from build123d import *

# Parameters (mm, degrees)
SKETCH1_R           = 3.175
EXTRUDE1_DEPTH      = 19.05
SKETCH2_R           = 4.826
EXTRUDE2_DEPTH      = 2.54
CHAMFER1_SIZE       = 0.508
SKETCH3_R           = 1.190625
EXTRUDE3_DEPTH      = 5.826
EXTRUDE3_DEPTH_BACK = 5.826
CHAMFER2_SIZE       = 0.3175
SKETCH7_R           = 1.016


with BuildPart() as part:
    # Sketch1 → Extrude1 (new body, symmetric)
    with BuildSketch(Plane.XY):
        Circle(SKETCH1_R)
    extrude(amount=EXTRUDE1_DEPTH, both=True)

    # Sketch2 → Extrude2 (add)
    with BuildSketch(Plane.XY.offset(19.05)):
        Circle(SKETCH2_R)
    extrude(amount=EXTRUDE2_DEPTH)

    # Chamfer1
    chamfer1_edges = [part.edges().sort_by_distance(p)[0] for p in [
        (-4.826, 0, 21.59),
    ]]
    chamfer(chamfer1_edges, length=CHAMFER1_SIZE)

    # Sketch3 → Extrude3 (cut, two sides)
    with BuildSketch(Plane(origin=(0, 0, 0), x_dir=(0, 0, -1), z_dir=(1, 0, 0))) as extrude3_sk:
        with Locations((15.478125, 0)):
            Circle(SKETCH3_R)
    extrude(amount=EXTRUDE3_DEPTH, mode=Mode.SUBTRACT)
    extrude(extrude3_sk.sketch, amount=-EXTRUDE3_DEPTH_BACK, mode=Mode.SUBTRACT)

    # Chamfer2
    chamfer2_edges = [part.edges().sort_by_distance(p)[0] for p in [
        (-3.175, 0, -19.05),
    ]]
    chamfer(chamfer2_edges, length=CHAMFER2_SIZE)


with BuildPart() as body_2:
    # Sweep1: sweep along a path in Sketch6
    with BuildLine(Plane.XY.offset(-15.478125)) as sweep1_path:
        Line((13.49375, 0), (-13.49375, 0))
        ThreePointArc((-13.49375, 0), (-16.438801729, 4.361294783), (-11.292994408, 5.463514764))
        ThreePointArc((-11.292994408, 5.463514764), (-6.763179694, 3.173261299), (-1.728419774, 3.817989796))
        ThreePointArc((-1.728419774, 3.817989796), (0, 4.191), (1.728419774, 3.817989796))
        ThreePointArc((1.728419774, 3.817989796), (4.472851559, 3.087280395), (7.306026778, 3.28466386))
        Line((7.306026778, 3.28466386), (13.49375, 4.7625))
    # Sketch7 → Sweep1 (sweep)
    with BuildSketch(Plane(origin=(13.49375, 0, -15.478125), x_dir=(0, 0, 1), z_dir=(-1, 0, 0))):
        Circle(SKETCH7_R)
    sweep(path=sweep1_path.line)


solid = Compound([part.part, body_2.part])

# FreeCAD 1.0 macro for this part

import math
import FreeCAD as App
import Part
import Sketcher
Q = App.Units.Quantity


def edges_at(feature, points):
    """Names of the edges that pass closest to the given points."""
    edges = feature.Shape.Edges
    near = lambda p: min(range(len(edges)), key=lambda i: edges[i].distToShape(Part.Vertex(*p))[0])
    return sorted({f"Edge{near(p) + 1}" for p in points})

doc = App.newDocument("Part")
body = doc.addObject("PartDesign::Body", "Body")

sketch1 = body.newObject("Sketcher::SketchObject", "Sketch")
sketch1.AttachmentSupport = (doc.getObject("XY_Plane"), [""])
sketch1.MapMode = "FlatFace"
sketch1.addGeometry(Part.Circle(App.Vector(0, 0, 0), App.Vector(0, 0, 1), 3.2), False)
sketch1.addConstraint([
    Sketcher.Constraint("Coincident", 0, 3, -1, 1),
    Sketcher.Constraint("Diameter", 0, Q("0.25 in")),
])
pad1 = body.newObject("PartDesign::Pad", "Pad")
pad1.Profile = sketch1
pad1.Length = Q("1.5 in")
pad1.Midplane = True

sketch2 = body.newObject("Sketcher::SketchObject", "Sketch001")
sketch2.AttachmentSupport = (doc.getObject("XY_Plane"), [""])
sketch2.MapMode = "FlatFace"
sketch2.AttachmentOffset = App.Placement(App.Vector(0, 0, 0.75 * 25.4), App.Rotation())
sketch2.addGeometry(Part.Circle(App.Vector(0, 0, 0), App.Vector(0, 0, 1), 4.8), False)
sketch2.addConstraint([
    Sketcher.Constraint("Coincident", 0, 3, -1, 1),
    Sketcher.Constraint("Diameter", 0, Q("0.38 in")),
])
pad2 = body.newObject("PartDesign::Pad", "Pad001")
pad2.Profile = sketch2
pad2.Length = Q("0.1 in")
doc.recompute()

chamfer = body.newObject("PartDesign::Chamfer", "Chamfer")
chamfer.Base = (pad2, edges_at(pad2, [(-4.826, 0, 21.59)]))
chamfer.Size = Q("0.02 in")

sketch3 = body.newObject("Sketcher::SketchObject", "Sketch002")
sketch3.AttachmentSupport = (doc.getObject("YZ_Plane"), [""])
sketch3.MapMode = "FlatFace"
sketch3.addGeometry(Part.Circle(App.Vector(0, -15.5, 0), App.Vector(0, 0, 1), 1.2), False)
sketch3.addConstraint([
    Sketcher.Constraint("PointOnObject", 0, 3, -2),
    Sketcher.Constraint("Diameter", 0, Q("0.09375 in")),
    Sketcher.Constraint("DistanceY", 0, 3, -1, 1, Q("0.609375 in")),
])
pocket1 = body.newObject("PartDesign::Pocket", "Pocket")
pocket1.Profile = sketch3
pocket1.Type = "ThroughAll"
pocket1.Midplane = True
doc.recompute()

chamfer2 = body.newObject("PartDesign::Chamfer", "Chamfer001")
chamfer2.Base = (pocket1, edges_at(pocket1, [(-3.175, 0, -19.05)]))
chamfer2.Size = Q("0.0125 in")
body2 = doc.addObject("PartDesign::Body", "Body001")

sketch4 = body2.newObject("Sketcher::SketchObject", "Sketch003")
sketch4.AttachmentSupport = (doc.getObject("YZ_Plane001"), [""])
sketch4.MapMode = "FlatFace"
sketch4.AttachmentOffset = App.Placement(App.Vector(0, 0, 0.53125 * 25.4), App.Rotation())
sketch4.addGeometry(Part.Circle(App.Vector(0, -15.5, 0), App.Vector(0, 0, 1), 1), False)
sketch4.addConstraint([
    Sketcher.Constraint("PointOnObject", 0, 3, -2),
    Sketcher.Constraint("Diameter", 0, Q("0.08 in")),
    Sketcher.Constraint("DistanceY", 0, 3, -1, 1, Q("0.609375 in")),
])

sketch5 = body2.newObject("Sketcher::SketchObject", "Sketch004")
sketch5.AttachmentSupport = (doc.getObject("XY_Plane001"), [""])
sketch5.MapMode = "FlatFace"
sketch5.AttachmentOffset = App.Placement(App.Vector(0, 0, -0.609375 * 25.4), App.Rotation())
sketch5.addGeometry([
    Part.LineSegment(App.Vector(13.5, 0, 0), App.Vector(-13.5, 0, 0)),
    Part.ArcOfCircle(Part.Circle(App.Vector(-13.5, 3.2, 0), App.Vector(0, 0, 1), 3.2), math.radians(46), math.radians(270)),
    Part.ArcOfCircle(Part.Circle(App.Vector(-5.3, 11.7, 0), App.Vector(0, 0, 1), 8.7), math.radians(-134), math.radians(-66)),
    Part.ArcOfCircle(Part.Circle(App.Vector(0, 0, 0), App.Vector(0, 0, 1), 4.2), math.radians(66), math.radians(114)),
    Part.ArcOfCircle(Part.Circle(App.Vector(5.3, 11.7, 0), App.Vector(0, 0, 1), 8.7), math.radians(-114), math.radians(-77)),
    Part.LineSegment(App.Vector(7.3, 3.3, 0), App.Vector(13.5, 4.8, 0)),
], False)
sketch5.addConstraint([
    Sketcher.Constraint("Tangent", 0, 2, 1, 2),
    Sketcher.Constraint("Tangent", 1, 1, 2, 1),
    Sketcher.Constraint("Tangent", 2, 2, 3, 2),
    Sketcher.Constraint("Tangent", 3, 1, 4, 1),
    Sketcher.Constraint("Tangent", 4, 2, 5, 1),
    Sketcher.Constraint("Horizontal", 0),
    Sketcher.Constraint("Coincident", 3, 3, -1, 1),
    Sketcher.Constraint("Equal", 2, 4),
    Sketcher.Constraint("Symmetric", 0, 1, 0, 2, -1, 1),
    Sketcher.Constraint("Horizontal", 2, 3, 4, 3),
    Sketcher.Constraint("Vertical", 0, 1, 5, 2),
    Sketcher.Constraint("Radius", 1, Q("0.125 in")),
    Sketcher.Constraint("Radius", 3, Q("0.165 in")),
    Sketcher.Constraint("DistanceX", 0, 2, 0, 1, Q("1.0625 in")),
    Sketcher.Constraint("DistanceY", -1, 1, 5, 2, Q("0.1875 in")),
    Sketcher.Constraint("Radius", 2, 8.651311),
])
doc.recompute()

additivepipe = body2.newObject("PartDesign::AdditivePipe", "AdditivePipe")
additivepipe.Profile = sketch4
additivepipe.Spine = (sketch5, ["Edge1", "Edge2", "Edge3", "Edge4", "Edge5", "Edge6"])

doc.recompute()
